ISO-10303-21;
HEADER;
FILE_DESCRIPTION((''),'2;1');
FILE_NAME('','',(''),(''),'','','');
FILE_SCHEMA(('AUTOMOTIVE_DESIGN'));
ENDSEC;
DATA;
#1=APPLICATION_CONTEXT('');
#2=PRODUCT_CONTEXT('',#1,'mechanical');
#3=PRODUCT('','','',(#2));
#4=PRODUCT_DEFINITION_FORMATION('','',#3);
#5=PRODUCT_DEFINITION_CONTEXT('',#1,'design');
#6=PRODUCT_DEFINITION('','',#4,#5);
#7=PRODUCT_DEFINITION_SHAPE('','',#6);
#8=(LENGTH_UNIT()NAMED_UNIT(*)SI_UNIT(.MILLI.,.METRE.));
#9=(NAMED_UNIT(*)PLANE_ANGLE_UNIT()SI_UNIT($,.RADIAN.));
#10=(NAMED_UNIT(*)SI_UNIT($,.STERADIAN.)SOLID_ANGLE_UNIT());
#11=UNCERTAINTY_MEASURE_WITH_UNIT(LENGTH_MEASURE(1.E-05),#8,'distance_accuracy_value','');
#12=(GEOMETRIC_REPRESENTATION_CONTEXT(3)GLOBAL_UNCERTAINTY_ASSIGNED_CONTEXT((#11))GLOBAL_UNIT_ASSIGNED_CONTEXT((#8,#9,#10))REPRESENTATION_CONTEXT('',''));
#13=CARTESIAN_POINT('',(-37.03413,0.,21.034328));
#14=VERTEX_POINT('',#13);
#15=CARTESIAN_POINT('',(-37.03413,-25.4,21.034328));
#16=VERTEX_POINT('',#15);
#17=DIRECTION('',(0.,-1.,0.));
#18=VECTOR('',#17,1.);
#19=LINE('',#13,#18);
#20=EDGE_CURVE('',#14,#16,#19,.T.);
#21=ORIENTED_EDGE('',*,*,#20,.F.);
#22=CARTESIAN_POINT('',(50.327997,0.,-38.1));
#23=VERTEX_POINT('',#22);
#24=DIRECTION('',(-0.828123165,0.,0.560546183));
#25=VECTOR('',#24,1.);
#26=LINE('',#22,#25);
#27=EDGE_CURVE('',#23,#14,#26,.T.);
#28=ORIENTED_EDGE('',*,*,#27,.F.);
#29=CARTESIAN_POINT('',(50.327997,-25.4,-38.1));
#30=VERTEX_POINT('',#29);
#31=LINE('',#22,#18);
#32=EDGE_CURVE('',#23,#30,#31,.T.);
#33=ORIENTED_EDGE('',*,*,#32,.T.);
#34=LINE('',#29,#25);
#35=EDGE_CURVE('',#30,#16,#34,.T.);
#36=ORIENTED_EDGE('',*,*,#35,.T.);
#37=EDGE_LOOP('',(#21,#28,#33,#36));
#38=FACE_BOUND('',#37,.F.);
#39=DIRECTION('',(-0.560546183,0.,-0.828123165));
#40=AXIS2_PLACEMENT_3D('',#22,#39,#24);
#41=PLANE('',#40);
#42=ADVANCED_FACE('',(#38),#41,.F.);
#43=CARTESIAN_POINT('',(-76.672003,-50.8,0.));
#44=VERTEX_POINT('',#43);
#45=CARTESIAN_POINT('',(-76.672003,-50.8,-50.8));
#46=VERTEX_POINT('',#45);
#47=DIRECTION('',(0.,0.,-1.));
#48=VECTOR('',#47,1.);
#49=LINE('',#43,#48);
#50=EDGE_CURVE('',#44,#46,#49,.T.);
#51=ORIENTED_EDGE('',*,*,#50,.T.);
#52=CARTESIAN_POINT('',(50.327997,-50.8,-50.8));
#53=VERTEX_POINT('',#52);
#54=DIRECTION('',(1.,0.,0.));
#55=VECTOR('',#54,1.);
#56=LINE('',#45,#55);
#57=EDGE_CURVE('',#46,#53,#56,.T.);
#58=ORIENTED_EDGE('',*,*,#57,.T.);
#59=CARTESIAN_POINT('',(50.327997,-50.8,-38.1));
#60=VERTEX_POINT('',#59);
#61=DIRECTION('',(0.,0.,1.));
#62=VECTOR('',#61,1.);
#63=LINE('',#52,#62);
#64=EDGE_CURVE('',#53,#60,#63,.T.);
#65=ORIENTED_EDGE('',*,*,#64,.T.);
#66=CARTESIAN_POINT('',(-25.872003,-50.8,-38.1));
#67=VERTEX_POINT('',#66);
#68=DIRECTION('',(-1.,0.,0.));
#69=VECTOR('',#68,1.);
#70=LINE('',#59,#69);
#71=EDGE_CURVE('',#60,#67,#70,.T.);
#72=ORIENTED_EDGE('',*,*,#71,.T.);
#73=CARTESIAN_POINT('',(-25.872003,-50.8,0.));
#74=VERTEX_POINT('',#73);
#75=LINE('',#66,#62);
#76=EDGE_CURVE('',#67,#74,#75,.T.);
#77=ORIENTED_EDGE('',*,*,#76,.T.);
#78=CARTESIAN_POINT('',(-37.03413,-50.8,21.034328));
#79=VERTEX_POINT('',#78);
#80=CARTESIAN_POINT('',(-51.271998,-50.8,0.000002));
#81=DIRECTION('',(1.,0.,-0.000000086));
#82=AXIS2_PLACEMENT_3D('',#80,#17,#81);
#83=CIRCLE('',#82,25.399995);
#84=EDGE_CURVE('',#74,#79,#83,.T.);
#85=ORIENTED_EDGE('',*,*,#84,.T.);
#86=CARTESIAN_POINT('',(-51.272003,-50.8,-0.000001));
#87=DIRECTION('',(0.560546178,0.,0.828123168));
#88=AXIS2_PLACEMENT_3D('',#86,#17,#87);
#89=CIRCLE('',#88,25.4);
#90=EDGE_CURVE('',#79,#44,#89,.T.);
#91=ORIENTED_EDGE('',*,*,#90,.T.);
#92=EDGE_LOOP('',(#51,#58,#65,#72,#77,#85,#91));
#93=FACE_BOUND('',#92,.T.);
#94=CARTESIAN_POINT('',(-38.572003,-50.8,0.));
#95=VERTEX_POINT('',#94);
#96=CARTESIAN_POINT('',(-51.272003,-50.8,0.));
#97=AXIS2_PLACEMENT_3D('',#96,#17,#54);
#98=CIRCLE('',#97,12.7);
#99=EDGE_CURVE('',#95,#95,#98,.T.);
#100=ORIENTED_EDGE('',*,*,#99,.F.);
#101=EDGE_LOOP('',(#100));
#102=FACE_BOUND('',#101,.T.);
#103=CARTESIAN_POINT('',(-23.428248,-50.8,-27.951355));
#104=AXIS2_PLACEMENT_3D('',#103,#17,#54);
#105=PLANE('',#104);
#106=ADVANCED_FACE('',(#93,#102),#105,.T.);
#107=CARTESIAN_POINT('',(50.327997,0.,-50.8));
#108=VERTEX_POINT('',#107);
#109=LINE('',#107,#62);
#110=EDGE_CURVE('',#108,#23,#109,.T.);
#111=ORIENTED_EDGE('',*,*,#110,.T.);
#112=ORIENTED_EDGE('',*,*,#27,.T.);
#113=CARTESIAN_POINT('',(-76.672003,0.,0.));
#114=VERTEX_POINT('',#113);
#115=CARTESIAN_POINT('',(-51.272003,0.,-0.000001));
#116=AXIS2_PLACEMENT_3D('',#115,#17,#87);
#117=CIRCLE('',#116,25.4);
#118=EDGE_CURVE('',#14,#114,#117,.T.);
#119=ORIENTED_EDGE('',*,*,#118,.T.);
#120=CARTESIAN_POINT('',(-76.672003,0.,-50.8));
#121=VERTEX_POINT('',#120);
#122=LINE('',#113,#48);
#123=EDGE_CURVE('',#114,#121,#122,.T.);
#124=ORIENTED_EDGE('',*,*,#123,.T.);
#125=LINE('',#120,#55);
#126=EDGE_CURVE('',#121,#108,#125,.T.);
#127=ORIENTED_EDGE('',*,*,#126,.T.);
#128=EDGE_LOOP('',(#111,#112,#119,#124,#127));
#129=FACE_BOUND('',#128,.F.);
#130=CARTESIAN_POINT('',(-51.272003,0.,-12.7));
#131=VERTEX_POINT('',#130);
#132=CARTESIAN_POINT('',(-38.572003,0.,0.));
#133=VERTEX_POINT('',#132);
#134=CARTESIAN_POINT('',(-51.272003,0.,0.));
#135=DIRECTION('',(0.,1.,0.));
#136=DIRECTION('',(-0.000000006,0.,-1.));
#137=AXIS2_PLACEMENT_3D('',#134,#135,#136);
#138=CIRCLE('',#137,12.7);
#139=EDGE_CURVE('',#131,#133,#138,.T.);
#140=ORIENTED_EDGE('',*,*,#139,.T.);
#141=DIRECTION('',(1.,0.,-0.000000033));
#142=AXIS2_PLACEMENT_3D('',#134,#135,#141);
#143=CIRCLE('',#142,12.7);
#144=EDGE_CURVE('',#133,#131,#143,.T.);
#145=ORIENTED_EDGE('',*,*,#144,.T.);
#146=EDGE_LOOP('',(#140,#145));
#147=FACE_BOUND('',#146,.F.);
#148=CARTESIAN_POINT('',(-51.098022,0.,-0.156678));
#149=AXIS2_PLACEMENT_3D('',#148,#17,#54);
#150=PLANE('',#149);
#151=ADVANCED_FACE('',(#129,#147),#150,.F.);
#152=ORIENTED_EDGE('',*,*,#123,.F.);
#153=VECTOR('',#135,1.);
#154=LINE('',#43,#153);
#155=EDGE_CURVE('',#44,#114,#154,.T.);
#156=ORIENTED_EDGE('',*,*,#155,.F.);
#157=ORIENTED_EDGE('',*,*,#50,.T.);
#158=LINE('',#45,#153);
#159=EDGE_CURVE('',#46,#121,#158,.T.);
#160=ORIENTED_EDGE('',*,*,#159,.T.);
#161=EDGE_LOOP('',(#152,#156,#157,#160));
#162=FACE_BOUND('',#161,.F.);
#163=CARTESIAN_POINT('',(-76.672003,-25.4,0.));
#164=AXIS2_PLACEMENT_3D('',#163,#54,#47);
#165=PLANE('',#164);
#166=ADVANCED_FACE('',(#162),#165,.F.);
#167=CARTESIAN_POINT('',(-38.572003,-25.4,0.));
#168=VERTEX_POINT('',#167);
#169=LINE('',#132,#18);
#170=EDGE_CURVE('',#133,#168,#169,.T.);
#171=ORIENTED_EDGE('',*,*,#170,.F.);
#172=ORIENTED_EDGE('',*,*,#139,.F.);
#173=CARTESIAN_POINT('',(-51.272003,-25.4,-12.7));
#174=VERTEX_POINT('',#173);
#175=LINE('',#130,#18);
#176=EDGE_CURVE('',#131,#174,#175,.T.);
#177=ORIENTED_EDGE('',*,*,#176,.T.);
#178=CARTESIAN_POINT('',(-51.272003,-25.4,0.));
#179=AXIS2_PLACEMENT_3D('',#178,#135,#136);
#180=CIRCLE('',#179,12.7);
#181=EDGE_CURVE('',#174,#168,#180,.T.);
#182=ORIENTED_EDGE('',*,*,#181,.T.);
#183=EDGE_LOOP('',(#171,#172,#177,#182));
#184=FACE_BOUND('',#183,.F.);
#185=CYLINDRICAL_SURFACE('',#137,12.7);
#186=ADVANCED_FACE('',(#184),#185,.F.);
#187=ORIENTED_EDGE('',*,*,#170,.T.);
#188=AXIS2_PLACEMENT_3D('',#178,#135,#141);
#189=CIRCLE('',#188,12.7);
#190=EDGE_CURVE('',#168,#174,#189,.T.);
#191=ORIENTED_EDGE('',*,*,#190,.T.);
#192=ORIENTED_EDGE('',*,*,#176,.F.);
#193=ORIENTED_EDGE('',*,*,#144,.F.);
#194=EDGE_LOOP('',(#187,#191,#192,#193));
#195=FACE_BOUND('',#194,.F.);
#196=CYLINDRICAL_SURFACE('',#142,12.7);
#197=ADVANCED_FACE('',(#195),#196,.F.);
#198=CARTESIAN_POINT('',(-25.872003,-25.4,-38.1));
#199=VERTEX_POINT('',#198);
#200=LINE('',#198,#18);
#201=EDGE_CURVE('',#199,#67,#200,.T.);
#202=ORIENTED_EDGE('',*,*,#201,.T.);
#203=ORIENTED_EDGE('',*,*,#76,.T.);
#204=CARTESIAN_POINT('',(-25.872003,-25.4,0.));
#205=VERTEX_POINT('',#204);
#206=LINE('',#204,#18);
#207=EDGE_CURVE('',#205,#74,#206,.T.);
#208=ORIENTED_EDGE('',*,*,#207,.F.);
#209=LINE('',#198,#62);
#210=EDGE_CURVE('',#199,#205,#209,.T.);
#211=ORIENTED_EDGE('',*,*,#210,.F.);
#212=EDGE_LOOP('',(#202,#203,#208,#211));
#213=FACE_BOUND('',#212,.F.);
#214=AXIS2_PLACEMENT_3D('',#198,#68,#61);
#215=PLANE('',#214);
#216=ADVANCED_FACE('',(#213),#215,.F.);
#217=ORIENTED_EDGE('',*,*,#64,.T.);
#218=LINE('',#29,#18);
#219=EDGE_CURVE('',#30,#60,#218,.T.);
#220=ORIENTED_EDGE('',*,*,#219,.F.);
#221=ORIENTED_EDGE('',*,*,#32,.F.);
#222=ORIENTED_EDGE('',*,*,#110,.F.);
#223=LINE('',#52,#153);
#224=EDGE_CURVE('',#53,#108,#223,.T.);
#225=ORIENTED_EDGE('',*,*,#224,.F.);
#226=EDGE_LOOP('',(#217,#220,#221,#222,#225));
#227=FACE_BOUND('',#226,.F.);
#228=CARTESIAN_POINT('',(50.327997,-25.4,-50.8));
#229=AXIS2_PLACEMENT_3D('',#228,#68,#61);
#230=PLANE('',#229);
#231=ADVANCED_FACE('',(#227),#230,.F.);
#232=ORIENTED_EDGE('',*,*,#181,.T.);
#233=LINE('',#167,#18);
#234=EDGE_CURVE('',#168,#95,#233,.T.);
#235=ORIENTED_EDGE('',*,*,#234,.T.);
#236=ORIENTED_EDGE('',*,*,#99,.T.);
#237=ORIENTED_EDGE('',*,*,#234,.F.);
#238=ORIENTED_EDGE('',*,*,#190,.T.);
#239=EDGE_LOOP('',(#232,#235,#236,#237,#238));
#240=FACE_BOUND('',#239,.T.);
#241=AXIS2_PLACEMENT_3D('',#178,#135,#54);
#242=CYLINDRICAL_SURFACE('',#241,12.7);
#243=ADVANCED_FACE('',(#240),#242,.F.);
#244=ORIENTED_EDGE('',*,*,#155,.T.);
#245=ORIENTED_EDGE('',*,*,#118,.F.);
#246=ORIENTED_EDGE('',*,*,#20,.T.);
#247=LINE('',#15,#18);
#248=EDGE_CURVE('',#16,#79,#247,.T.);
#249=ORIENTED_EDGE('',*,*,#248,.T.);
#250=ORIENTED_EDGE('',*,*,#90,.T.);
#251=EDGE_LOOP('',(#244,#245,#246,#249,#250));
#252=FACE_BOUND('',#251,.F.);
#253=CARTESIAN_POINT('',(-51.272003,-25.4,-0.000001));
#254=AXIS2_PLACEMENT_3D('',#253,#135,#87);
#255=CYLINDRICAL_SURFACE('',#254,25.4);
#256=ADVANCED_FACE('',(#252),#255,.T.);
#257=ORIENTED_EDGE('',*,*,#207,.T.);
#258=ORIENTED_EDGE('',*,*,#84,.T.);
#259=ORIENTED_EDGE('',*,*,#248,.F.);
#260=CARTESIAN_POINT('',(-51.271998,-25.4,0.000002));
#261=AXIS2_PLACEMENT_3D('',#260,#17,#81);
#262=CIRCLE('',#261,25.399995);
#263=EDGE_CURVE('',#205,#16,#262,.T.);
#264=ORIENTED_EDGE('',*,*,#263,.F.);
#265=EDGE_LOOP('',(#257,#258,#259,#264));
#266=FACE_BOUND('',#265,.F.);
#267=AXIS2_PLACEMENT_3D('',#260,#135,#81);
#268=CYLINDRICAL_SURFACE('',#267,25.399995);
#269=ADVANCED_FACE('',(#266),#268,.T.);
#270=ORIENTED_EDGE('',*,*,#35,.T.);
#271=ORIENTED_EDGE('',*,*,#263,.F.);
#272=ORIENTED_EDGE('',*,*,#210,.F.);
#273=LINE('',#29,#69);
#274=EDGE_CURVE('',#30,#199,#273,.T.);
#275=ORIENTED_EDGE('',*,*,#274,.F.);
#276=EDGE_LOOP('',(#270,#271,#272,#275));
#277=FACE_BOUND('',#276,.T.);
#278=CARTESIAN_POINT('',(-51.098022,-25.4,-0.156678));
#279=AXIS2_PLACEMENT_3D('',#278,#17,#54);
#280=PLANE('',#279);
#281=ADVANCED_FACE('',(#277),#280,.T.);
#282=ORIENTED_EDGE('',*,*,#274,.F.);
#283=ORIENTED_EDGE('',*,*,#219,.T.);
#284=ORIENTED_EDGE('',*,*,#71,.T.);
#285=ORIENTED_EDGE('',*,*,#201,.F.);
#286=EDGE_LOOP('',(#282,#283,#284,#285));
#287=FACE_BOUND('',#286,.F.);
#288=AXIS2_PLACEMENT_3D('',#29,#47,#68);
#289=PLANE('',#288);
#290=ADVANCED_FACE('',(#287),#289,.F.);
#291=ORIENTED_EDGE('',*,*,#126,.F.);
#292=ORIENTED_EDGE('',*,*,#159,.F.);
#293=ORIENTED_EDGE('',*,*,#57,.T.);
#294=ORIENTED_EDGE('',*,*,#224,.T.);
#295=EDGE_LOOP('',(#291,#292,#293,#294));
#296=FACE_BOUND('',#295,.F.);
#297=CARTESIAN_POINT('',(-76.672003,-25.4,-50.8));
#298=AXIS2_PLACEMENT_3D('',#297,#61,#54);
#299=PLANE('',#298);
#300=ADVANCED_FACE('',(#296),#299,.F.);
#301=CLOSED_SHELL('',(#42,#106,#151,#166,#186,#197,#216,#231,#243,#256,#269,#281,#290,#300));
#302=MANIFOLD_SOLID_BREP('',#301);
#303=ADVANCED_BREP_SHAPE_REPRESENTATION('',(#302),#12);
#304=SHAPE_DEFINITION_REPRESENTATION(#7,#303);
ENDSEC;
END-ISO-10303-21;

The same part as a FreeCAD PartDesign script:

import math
import FreeCAD as App
import Part
import Sketcher
from FreeCAD import Vector
Q = App.Units.Quantity

doc = App.newDocument("Part")
body = doc.addObject("PartDesign::Body", "Body")

# Sketch on XZ plane
sketch1 = body.newObject("Sketcher::SketchObject", "Sketch")
sketch1.AttachmentSupport = (doc.getObject("XZ_Plane"), [""])
sketch1.MapMode = "FlatFace"
sketch1.addGeometry([
    Part.ArcOfCircle(Part.Circle(Vector(-51, 0, 0), Vector(0, 0, 1), 25), math.radians(56), math.radians(180)),  # 0
    Part.LineSegment(Vector(-77, 0, 0), Vector(-77, -51, 0)),  # 1
    Part.LineSegment(Vector(-77, -51, 0), Vector(50, -51, 0)),  # 2
    Part.LineSegment(Vector(50, -51, 0), Vector(50, -38, 0)),  # 3
    Part.LineSegment(Vector(50, -38, 0), Vector(-37, 21, 0)),  # 4
    Part.ArcOfCircle(Part.Circle(Vector(-51, 0, 0), Vector(0, 0, 1), 13), math.radians(0), math.radians(270)),  # 5
    Part.ArcOfCircle(Part.Circle(Vector(-51, 0, 0), Vector(0, 0, 1), 13), math.radians(-90), math.radians(0)),  # 6
], False)
sketch1.addConstraint([
    Sketcher.Constraint("Tangent", 0, 2, 1, 1),
    Sketcher.Constraint("Coincident", 1, 2, 2, 1),
    Sketcher.Constraint("Coincident", 2, 2, 3, 1),
    Sketcher.Constraint("Coincident", 3, 2, 4, 1),
    Sketcher.Constraint("Tangent", 4, 2, 0, 1),
    Sketcher.Constraint("Tangent", 5, 1, 6, 2),
    Sketcher.Constraint("Coincident", 6, 1, 5, 2),
    Sketcher.Constraint("Vertical", 1),
    Sketcher.Constraint("Horizontal", 2),
    Sketcher.Constraint("Vertical", 3),
    Sketcher.Constraint("Coincident", 5, 3, 0, 3),
    Sketcher.Constraint("PointOnObject", 0, 3, -1),
    Sketcher.Constraint("PointOnObject", 5, 1, -1),
    Sketcher.Constraint("Vertical", 5, 3, 6, 1),
    Sketcher.Constraint("Radius", 0, Q("1 in")),
    Sketcher.Constraint("Radius", 5, Q("0.5 in")),
    Sketcher.Constraint("DistanceX", 2, 1, 2, 2, Q("5 in")),
    Sketcher.Constraint("DistanceY", 1, 2, 1, 1, Q("2 in")),
    Sketcher.Constraint("DistanceY", 3, 1, 3, 2, Q("0.5 in")),
    Sketcher.Constraint("DistanceX", 4, 2, -1, 1, Q("37.03413 mm")),
])
pad1 = body.newObject("PartDesign::Pad", "Pad")
pad1.Profile = sketch1
pad1.Length = Q("1 in")

# Sketch on XZ plane
sketch2 = body.newObject("Sketcher::SketchObject", "Sketch001")
sketch2.AttachmentSupport = (doc.getObject("XZ_Plane"), [""])
sketch2.MapMode = "FlatFace"
sketch2.AttachmentOffset = App.Placement(Vector(0, 0, 1 * 25.4), App.Rotation())
sketch2.addGeometry([
    Part.LineSegment(Vector(50, -51, 0), Vector(50, -38, 0)),  # 0
    Part.LineSegment(Vector(50, -38, 0), Vector(-26, -38, 0)),  # 1
    Part.LineSegment(Vector(-26, -38, 0), Vector(-26, 0, 0)),  # 2
    Part.ArcOfCircle(Part.Circle(Vector(-51, 0, 0), Vector(0, 0, 1), 25), math.radians(0), math.radians(56)),  # 3
    Part.ArcOfCircle(Part.Circle(Vector(-51, 0, 0), Vector(0, 0, 1), 25), math.radians(56), math.radians(180)),  # 4
    Part.LineSegment(Vector(-77, 0, 0), Vector(-77, -51, 0)),  # 5
    Part.LineSegment(Vector(-77, -51, 0), Vector(50, -51, 0)),  # 6
    Part.Circle(Vector(-51, 0, 0), Vector(0, 0, 1), 13),  # 7
], False)
sketch2.addConstraint([
    Sketcher.Constraint("Coincident", 0, 2, 1, 1),
    Sketcher.Constraint("Coincident", 1, 2, 2, 1),
    Sketcher.Constraint("Tangent", 2, 2, 3, 1),
    Sketcher.Constraint("Tangent", 3, 2, 4, 1),
    Sketcher.Constraint("Tangent", 4, 2, 5, 1),
    Sketcher.Constraint("Coincident", 5, 2, 6, 1),
    Sketcher.Constraint("Coincident", 6, 2, 0, 1),
    Sketcher.Constraint("Vertical", 0),
    Sketcher.Constraint("Horizontal", 1),
    Sketcher.Constraint("Vertical", 2),
    Sketcher.Constraint("Vertical", 5),
    Sketcher.Constraint("Horizontal", 6),
    Sketcher.Constraint("Coincident", 7, 3, 3, 3),
    Sketcher.Constraint("PointOnObject", 4, 3, -1),
    Sketcher.Constraint("PointOnObject", 7, 3, -1),
    Sketcher.Constraint("Diameter", 7, Q("1 in")),
    Sketcher.Constraint("Radius", 3, Q("0.9999998 in")),
    Sketcher.Constraint("DistanceX", 1, 2, 1, 1, Q("3 in")),
    Sketcher.Constraint("DistanceY", 5, 2, 5, 1, Q("2 in")),
    Sketcher.Constraint("DistanceY", 0, 1, 0, 2, Q("0.5 in")),
    Sketcher.Constraint("DistanceX", 3, 3, -1, 1, Q("51.271998 mm")),
    Sketcher.Constraint("DistanceX", 3, 2, -1, 1, Q("37.03413 mm")),
])
pad2 = body.newObject("PartDesign::Pad", "Pad001")
pad2.Profile = sketch2
pad2.Length = Q("1 in")

doc.recompute()
